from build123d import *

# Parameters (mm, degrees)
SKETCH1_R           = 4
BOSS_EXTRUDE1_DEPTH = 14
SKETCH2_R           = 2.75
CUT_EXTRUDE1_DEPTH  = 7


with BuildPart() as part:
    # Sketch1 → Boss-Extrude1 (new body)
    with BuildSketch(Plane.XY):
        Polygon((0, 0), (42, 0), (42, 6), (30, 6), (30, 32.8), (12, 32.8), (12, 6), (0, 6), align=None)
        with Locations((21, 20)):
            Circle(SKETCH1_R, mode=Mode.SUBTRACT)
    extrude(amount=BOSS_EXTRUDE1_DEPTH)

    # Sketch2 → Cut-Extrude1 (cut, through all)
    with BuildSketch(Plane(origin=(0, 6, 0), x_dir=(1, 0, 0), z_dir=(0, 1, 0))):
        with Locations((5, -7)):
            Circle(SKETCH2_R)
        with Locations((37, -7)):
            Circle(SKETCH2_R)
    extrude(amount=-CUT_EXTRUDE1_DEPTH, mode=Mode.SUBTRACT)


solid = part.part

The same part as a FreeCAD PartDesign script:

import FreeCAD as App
import Part
import Sketcher

doc = App.newDocument("Part")
body = doc.addObject("PartDesign::Body", "Body")

sketch1 = doc.addObject("Sketcher::SketchObject", "Sketch")
body.addObject(sketch1)
sketch1.AttachmentSupport = (doc.XY_Plane, [""])
sketch1.MapMode = "FlatFace"
sketch1.addGeometry(Part.LineSegment(App.Vector(0, 0, 0), App.Vector(42, 0, 0)), False)
sketch1.addGeometry(Part.LineSegment(App.Vector(42, 0, 0), App.Vector(42, 6, 0)), False)
sketch1.addGeometry(Part.LineSegment(App.Vector(42, 6, 0), App.Vector(30, 6, 0)), False)
sketch1.addGeometry(Part.LineSegment(App.Vector(30, 6, 0), App.Vector(30, 32.8, 0)), False)
sketch1.addGeometry(Part.LineSegment(App.Vector(30, 32.8, 0), App.Vector(12, 32.8, 0)), False)
sketch1.addGeometry(Part.LineSegment(App.Vector(12, 32.8, 0), App.Vector(12, 6, 0)), False)
sketch1.addGeometry(Part.LineSegment(App.Vector(12, 6, 0), App.Vector(0, 6, 0)), False)
sketch1.addGeometry(Part.LineSegment(App.Vector(0, 6, 0), App.Vector(0, 0, 0)), False)
sketch1.addGeometry(Part.Circle(App.Vector(21, 20, 0), App.Vector(0, 0, 1), 4), False)
sketch1.addConstraint(Sketcher.Constraint("Coincident", 0, 2, 1, 1))
sketch1.addConstraint(Sketcher.Constraint("Coincident", 1, 2, 2, 1))
sketch1.addConstraint(Sketcher.Constraint("Coincident", 2, 2, 3, 1))
sketch1.addConstraint(Sketcher.Constraint("Coincident", 3, 2, 4, 1))
sketch1.addConstraint(Sketcher.Constraint("Coincident", 4, 2, 5, 1))
sketch1.addConstraint(Sketcher.Constraint("Coincident", 5, 2, 6, 1))
sketch1.addConstraint(Sketcher.Constraint("Coincident", 6, 2, 7, 1))
sketch1.addConstraint(Sketcher.Constraint("Coincident", 7, 2, 0, 1))
sketch1.addConstraint(Sketcher.Constraint("Horizontal", 0))
sketch1.addConstraint(Sketcher.Constraint("Vertical", 1))
sketch1.addConstraint(Sketcher.Constraint("Horizontal", 2))
sketch1.addConstraint(Sketcher.Constraint("Vertical", 3))
sketch1.addConstraint(Sketcher.Constraint("Horizontal", 4))
sketch1.addConstraint(Sketcher.Constraint("Vertical", 5))
sketch1.addConstraint(Sketcher.Constraint("Horizontal", 6))
sketch1.addConstraint(Sketcher.Constraint("Vertical", 7))
sketch1.addConstraint(Sketcher.Constraint("Coincident", 7, 2, -1, 1))
sketch1.addConstraint(Sketcher.Constraint("Horizontal", 2, 2, 5, 2))
sketch1.addConstraint(Sketcher.Constraint("Equal", 2, 6))
sketch1.addConstraint(Sketcher.Constraint("Diameter", 8, 8.0))
sketch1.addConstraint(Sketcher.Constraint("DistanceX", 0, 1, 0, 2, 42.0))
sketch1.addConstraint(Sketcher.Constraint("DistanceX", 2, 2, 2, 1, 12.0))
sketch1.addConstraint(Sketcher.Constraint("DistanceY", 1, 1, 1, 2, 6.0))
sketch1.addConstraint(Sketcher.Constraint("DistanceY", 3, 1, 3, 2, 26.8))
sketch1.addConstraint(Sketcher.Constraint("DistanceX", -1, 1, 8, 3, 21.0))
sketch1.addConstraint(Sketcher.Constraint("DistanceY", -1, 1, 8, 3, 20.0))
pad1 = doc.addObject("PartDesign::Pad", "Pad")
body.addObject(pad1)
pad1.Profile = sketch1
pad1.Length = 14

sketch2 = doc.addObject("Sketcher::SketchObject", "Sketch001")
body.addObject(sketch2)
sketch2.AttachmentSupport = (doc.XZ_Plane, [""])
sketch2.MapMode = "FlatFace"
sketch2.AttachmentOffset = App.Placement(App.Vector(0, 0, -6), App.Rotation())
sketch2.addGeometry(Part.Circle(App.Vector(5, 7, 0), App.Vector(0, 0, 1), 2.75), False)
sketch2.addGeometry(Part.Circle(App.Vector(37, 7, 0), App.Vector(0, 0, 1), 2.75), False)
sketch2.addConstraint(Sketcher.Constraint("Equal", 0, 1))
sketch2.addConstraint(Sketcher.Constraint("Horizontal", 0, 3, 1, 3))
sketch2.addConstraint(Sketcher.Constraint("Diameter", 0, 5.5))
sketch2.addConstraint(Sketcher.Constraint("DistanceX", -1, 1, 0, 3, 5.0))
sketch2.addConstraint(Sketcher.Constraint("DistanceY", -1, 1, 0, 3, 7.0))
sketch2.addConstraint(Sketcher.Constraint("DistanceX", -1, 1, 1, 3, 37.0))
pocket1 = doc.addObject("PartDesign::Pocket", "Pocket")
body.addObject(pocket1)
pocket1.Profile = sketch2
pocket1.Type = "ThroughAll"
pocket1.Reversed = True

doc.recompute()
